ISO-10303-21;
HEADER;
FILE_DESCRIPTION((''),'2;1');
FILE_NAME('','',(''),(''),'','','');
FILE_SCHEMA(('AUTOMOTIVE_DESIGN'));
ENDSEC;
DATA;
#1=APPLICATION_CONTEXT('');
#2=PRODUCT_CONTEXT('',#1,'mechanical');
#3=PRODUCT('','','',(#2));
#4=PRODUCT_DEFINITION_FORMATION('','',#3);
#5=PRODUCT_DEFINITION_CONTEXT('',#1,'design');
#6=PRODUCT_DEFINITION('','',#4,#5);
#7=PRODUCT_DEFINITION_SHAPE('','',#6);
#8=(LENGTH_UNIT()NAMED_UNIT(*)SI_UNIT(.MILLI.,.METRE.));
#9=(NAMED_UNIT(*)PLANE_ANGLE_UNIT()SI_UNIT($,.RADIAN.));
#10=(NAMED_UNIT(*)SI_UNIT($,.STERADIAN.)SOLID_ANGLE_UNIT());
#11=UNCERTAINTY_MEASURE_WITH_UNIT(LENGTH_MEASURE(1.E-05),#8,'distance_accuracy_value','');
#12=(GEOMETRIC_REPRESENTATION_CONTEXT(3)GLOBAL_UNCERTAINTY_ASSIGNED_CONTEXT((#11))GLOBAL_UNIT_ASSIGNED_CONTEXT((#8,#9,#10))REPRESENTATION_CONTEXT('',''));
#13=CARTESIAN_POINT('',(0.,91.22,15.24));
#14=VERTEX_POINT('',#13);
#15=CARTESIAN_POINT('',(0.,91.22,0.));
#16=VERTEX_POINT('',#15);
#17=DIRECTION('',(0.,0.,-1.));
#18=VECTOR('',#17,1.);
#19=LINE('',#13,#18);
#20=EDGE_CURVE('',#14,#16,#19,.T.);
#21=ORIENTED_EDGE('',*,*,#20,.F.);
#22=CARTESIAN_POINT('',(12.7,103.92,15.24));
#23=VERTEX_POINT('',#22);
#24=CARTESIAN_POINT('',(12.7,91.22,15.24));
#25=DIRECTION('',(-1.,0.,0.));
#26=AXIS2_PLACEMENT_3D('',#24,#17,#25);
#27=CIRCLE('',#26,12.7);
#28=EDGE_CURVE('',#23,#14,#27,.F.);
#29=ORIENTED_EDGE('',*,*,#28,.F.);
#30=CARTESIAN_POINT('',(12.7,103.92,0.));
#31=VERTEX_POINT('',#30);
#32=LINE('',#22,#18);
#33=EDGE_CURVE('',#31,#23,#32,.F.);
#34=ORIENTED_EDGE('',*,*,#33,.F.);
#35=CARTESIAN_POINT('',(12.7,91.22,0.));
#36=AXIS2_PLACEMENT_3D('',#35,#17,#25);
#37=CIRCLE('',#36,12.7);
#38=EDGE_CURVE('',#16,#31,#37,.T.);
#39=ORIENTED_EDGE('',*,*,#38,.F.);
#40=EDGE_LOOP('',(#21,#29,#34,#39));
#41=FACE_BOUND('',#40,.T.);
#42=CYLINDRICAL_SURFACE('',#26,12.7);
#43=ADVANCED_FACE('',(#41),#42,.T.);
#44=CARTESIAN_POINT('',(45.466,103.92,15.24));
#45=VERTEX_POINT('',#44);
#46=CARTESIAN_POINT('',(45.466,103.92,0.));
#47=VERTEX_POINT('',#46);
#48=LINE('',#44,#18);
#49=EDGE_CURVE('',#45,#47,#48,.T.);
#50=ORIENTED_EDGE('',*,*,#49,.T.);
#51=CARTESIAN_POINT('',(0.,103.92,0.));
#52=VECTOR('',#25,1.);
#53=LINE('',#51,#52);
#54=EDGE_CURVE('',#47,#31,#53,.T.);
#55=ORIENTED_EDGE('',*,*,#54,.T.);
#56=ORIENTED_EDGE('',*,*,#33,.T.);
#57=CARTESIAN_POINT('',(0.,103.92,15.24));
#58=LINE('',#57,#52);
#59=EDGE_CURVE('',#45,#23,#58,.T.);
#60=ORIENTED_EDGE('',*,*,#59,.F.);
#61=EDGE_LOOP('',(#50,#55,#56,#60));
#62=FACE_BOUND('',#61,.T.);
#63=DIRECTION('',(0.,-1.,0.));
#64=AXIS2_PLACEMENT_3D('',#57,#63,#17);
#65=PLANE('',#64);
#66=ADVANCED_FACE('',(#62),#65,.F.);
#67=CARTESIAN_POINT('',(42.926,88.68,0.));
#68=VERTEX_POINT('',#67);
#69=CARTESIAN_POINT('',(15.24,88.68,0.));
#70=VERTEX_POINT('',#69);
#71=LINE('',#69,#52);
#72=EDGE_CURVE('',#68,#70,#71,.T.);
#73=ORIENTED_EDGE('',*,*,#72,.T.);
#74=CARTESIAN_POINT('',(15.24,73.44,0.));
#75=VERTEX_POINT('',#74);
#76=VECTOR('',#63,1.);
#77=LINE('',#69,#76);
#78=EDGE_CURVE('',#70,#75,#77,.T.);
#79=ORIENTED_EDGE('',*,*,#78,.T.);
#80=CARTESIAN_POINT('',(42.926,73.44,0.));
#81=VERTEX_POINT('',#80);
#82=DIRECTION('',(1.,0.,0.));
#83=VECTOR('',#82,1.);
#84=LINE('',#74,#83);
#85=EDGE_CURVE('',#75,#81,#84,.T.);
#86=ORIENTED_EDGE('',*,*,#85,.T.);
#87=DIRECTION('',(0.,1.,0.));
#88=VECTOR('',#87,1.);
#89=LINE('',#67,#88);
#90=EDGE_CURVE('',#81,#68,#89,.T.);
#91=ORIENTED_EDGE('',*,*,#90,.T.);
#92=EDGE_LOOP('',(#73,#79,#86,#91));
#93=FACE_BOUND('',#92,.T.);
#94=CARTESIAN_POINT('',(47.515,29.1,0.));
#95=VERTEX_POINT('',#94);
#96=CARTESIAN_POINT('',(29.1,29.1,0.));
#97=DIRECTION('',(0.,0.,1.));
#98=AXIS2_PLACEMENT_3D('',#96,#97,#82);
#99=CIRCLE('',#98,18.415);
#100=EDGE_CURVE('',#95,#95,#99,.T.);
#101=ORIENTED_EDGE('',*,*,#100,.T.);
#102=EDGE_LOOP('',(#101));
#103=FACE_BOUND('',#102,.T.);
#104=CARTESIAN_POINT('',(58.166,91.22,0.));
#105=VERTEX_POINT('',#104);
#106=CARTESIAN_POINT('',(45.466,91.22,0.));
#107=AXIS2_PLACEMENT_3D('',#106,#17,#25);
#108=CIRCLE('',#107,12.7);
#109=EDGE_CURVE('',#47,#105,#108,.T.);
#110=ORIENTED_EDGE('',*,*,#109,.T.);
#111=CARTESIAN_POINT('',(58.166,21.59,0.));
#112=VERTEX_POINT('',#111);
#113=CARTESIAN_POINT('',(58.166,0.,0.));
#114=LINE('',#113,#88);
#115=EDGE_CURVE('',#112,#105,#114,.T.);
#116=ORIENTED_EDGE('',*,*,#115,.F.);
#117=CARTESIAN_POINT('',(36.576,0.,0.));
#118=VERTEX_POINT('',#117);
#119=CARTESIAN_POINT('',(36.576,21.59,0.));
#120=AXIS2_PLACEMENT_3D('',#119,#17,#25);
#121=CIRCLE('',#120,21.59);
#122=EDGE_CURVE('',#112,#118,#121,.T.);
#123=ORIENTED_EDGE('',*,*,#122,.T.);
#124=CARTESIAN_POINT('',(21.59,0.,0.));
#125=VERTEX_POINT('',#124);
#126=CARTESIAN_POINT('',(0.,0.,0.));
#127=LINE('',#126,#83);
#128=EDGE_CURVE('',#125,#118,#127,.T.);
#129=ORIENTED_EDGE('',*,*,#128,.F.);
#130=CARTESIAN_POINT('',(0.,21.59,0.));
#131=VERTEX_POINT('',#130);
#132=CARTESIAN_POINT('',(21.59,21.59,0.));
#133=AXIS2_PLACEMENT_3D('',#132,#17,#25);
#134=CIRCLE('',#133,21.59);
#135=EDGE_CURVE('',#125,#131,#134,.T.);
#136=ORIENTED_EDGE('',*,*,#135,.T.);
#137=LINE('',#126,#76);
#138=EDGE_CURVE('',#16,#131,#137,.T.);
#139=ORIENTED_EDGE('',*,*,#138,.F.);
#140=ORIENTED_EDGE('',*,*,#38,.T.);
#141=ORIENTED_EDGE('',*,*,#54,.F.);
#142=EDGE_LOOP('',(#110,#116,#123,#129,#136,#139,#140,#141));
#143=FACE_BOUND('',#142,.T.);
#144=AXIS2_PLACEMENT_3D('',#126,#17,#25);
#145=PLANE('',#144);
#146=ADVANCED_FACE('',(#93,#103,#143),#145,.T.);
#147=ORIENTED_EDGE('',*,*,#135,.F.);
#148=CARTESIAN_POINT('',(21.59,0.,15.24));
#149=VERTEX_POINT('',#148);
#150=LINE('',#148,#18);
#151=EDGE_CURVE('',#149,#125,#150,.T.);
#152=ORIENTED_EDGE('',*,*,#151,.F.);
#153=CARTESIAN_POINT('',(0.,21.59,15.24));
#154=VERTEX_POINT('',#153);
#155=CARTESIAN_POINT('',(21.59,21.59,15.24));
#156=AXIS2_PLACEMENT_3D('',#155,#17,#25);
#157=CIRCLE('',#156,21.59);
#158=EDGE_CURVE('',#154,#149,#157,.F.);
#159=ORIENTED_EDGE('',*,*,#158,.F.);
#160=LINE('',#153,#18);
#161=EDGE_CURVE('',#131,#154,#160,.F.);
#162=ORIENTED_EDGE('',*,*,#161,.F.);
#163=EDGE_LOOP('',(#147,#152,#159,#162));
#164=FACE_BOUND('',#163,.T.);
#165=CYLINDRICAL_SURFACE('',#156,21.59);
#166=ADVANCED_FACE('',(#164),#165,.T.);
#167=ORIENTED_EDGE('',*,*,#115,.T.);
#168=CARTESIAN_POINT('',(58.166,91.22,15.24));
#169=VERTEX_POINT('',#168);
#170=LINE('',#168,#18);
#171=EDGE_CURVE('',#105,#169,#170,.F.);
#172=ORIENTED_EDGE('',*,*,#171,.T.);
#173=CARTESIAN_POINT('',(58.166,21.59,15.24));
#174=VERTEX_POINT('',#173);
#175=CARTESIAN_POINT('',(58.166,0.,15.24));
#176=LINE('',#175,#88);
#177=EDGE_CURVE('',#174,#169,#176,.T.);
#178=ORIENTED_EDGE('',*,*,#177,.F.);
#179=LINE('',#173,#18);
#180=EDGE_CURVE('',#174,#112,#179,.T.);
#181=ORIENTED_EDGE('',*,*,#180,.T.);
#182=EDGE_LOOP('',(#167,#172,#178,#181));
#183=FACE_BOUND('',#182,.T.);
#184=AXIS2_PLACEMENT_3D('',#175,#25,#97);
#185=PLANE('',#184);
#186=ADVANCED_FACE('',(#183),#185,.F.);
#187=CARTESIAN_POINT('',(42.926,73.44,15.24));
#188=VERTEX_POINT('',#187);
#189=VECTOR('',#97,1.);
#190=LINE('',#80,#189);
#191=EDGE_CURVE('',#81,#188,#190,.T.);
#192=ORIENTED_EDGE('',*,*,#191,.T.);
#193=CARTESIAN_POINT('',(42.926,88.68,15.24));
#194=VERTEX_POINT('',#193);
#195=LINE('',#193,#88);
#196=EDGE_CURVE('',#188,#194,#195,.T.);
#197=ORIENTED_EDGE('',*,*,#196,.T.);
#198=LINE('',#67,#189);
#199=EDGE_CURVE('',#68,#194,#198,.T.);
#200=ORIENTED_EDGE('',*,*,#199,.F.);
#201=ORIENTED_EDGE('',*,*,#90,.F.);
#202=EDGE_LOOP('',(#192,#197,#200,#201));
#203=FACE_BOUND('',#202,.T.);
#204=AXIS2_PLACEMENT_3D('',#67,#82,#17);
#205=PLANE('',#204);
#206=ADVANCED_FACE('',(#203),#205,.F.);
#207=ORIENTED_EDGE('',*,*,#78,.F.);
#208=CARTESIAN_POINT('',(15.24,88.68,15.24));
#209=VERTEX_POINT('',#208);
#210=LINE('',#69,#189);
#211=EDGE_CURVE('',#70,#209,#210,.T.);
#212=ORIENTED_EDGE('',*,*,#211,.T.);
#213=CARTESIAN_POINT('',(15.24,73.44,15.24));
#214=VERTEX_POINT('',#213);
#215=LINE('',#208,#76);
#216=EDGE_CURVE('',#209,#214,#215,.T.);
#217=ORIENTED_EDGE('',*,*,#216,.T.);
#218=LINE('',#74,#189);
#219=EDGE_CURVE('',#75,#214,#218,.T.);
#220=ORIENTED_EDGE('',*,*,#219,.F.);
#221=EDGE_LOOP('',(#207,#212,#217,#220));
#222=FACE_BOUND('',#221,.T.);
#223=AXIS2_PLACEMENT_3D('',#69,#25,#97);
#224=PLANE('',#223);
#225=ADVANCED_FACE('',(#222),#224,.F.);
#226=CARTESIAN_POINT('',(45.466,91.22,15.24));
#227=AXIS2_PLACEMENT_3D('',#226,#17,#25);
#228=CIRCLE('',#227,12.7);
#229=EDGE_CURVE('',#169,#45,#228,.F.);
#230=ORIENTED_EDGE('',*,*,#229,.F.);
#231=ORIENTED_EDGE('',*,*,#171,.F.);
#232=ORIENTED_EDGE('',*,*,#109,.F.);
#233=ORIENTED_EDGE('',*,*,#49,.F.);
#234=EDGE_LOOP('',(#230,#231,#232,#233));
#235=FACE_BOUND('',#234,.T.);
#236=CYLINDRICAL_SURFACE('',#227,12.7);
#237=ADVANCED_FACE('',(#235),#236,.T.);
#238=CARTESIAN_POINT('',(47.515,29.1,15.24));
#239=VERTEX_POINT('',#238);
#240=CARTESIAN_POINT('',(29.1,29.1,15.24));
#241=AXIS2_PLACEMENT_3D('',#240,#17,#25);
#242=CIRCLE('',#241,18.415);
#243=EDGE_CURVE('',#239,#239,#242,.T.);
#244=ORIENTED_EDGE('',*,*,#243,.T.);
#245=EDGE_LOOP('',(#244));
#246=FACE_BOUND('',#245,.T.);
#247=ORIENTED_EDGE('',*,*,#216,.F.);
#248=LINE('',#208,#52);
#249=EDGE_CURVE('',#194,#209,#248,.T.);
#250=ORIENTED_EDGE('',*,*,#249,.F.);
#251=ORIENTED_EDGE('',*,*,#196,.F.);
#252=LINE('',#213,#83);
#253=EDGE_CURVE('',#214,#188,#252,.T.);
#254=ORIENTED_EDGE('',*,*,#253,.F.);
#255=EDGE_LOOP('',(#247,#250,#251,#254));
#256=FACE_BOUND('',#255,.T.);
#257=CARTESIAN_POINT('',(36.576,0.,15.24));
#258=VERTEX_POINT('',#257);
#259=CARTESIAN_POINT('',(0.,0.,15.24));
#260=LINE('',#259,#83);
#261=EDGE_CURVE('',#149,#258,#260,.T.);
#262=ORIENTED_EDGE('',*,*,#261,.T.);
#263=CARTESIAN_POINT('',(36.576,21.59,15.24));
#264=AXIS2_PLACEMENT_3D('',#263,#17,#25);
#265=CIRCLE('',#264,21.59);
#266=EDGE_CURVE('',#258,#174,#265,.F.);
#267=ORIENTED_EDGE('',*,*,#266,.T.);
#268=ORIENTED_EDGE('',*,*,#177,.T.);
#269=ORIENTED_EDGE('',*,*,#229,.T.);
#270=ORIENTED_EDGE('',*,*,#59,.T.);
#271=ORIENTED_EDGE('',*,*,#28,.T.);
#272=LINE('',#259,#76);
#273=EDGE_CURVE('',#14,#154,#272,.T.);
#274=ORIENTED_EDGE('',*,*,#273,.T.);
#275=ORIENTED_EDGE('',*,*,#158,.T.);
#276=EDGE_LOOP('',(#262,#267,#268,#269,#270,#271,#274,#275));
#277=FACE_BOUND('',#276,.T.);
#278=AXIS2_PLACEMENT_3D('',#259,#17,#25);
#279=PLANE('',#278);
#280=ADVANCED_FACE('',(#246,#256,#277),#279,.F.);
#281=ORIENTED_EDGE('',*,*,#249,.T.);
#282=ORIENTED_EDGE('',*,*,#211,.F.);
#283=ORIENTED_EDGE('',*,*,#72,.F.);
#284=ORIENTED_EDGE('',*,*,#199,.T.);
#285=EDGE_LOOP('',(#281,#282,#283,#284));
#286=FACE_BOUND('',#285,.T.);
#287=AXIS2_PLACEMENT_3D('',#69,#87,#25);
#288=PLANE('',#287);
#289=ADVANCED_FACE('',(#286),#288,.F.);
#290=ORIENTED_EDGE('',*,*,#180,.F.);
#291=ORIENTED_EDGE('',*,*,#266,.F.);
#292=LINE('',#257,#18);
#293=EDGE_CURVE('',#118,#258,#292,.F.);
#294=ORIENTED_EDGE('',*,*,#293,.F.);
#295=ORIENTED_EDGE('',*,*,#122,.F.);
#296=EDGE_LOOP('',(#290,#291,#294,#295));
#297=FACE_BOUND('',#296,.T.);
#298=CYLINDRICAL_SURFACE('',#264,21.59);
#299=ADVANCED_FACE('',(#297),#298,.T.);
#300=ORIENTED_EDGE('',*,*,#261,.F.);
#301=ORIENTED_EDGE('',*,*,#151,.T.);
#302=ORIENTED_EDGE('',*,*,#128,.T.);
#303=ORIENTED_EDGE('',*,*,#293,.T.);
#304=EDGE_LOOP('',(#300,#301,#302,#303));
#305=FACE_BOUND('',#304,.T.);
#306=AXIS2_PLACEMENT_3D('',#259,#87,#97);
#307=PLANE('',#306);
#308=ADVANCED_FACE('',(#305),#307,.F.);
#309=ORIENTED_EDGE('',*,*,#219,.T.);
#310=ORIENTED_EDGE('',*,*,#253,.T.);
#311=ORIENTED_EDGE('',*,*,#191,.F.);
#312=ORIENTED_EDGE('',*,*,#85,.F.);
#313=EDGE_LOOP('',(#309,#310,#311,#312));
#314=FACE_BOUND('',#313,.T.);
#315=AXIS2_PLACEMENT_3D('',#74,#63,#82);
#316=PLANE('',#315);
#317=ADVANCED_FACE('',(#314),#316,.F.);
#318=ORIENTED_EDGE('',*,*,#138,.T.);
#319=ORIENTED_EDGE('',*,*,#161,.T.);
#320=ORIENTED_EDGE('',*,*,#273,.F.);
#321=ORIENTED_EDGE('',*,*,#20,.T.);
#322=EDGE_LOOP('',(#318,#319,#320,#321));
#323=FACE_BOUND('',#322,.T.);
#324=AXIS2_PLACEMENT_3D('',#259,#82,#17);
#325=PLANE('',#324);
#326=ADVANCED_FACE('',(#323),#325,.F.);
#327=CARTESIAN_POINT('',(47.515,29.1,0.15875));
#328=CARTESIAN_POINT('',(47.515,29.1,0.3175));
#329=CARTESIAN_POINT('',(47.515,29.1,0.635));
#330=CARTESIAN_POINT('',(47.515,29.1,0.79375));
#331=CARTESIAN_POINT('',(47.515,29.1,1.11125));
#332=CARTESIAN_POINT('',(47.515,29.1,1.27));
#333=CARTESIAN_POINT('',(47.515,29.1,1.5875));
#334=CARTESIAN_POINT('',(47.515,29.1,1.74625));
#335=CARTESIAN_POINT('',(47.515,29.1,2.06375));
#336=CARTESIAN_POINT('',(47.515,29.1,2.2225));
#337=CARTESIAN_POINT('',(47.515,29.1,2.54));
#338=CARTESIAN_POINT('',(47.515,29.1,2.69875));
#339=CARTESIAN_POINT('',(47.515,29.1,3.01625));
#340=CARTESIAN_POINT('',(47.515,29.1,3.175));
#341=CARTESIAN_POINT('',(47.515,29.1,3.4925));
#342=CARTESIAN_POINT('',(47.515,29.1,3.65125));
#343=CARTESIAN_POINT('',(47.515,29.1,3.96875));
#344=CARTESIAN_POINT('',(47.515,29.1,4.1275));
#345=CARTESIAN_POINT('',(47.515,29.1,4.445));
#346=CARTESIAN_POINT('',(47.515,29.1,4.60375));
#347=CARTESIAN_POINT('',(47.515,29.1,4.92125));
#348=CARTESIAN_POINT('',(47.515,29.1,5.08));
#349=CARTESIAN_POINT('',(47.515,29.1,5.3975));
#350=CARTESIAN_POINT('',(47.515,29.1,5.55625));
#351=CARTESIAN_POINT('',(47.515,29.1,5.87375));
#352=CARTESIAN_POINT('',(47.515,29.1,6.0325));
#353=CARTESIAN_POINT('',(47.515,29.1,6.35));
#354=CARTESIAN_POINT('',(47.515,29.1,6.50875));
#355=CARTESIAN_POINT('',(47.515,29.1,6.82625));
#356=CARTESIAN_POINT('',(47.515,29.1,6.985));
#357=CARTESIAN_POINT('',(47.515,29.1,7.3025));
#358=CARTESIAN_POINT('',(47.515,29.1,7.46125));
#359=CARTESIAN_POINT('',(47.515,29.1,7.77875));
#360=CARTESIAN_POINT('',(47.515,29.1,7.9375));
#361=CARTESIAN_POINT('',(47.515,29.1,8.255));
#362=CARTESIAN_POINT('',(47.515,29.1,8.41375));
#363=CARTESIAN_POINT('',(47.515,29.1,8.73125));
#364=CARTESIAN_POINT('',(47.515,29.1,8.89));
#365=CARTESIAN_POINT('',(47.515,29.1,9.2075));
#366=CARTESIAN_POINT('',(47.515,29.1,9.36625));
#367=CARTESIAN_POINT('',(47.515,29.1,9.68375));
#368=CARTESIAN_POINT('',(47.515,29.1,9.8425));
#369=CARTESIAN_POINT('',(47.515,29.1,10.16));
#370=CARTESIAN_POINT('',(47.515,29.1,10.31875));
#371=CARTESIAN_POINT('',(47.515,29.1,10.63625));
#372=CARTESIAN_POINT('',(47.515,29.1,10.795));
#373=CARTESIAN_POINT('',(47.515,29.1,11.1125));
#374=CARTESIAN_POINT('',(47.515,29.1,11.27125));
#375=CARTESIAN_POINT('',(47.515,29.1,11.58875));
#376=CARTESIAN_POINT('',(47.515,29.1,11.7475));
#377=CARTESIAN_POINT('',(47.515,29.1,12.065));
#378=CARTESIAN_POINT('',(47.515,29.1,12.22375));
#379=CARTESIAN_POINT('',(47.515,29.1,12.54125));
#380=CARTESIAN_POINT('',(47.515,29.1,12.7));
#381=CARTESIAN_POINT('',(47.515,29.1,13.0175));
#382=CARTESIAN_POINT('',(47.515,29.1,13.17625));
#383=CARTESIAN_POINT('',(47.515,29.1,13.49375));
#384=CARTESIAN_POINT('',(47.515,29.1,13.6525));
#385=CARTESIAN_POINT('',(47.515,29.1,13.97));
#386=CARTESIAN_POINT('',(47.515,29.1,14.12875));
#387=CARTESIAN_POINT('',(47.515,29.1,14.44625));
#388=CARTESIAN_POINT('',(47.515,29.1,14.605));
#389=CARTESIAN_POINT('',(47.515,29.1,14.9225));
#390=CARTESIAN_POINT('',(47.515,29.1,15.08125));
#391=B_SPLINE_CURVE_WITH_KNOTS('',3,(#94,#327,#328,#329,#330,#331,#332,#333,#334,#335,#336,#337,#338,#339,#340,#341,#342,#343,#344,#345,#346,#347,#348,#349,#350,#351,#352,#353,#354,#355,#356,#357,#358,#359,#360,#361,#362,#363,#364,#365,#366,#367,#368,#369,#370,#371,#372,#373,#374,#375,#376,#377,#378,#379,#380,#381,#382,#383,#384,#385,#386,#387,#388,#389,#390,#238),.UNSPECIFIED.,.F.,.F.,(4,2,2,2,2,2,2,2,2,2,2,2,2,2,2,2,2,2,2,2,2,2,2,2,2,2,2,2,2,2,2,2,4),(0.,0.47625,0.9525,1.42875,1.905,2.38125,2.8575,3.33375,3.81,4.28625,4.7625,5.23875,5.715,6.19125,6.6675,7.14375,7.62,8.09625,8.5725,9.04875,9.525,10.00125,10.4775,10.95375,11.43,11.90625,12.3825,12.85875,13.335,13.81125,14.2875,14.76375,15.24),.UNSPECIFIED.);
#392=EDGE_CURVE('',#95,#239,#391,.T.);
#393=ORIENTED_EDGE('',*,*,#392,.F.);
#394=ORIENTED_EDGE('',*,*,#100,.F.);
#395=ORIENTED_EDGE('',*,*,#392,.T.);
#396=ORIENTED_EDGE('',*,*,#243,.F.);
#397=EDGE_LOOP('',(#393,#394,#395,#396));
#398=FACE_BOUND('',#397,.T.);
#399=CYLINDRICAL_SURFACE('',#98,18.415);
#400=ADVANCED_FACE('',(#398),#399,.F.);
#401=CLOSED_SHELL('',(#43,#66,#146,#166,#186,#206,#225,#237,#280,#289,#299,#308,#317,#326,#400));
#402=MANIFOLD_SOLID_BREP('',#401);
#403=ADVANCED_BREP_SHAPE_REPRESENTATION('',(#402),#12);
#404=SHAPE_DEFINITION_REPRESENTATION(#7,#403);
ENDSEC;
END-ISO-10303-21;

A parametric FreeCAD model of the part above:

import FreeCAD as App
import Part
import Sketcher

V = App.Vector
Q = App.Units.Quantity


def edges_at(feature, points):
    """Names of the edges that pass closest to the given points."""
    edges = feature.Shape.Edges
    near = lambda p: min(range(len(edges)), key=lambda i: edges[i].distToShape(Part.Vertex(*p))[0])
    return sorted({f"Edge{near(p) + 1}" for p in points})


def add_polygon(sketch, points):
    """Adds a closed chain of lines whose ends are joined by coincident constraints."""
    first, n = sketch.GeometryCount, len(points)
    for a, b in zip(points, points[1:] + points[:1]):
        sketch.addGeometry(Part.LineSegment(App.Vector(*a, 0), App.Vector(*b, 0)), False)
    for i in range(n):
        sketch.addConstraint(Sketcher.Constraint("Coincident", first + i, 2, first + (i + 1) % n, 1))

doc = App.newDocument("Part")
body = doc.addObject("PartDesign::Body", "Body")

# Sketch on XY plane
sketch1 = body.newObject("Sketcher::SketchObject", "Sketch")
sketch1.AttachmentSupport = (doc.getObject("XY_Plane"), [""])
sketch1.MapMode = "FlatFace"
add_polygon(sketch1, [(0, 104), (0, 0), (58, 0), (58, 104)])  # lines 0-3
sketch1.addConstraint([
    Sketcher.Constraint("Vertical", 0),
    Sketcher.Constraint("Horizontal", 1),
    Sketcher.Constraint("Vertical", 2),
    Sketcher.Constraint("Horizontal", 3),
    Sketcher.Constraint("Coincident", 0, 2, -1, 1),
    Sketcher.Constraint("DistanceX", 1, 1, 1, 2, Q("2.29 in")),
    Sketcher.Constraint("DistanceY", 0, 2, 0, 1, Q("103.92 mm")),
])
pad1 = body.newObject("PartDesign::Pad", "Pad")
pad1.Profile = sketch1
pad1.Length = Q("0.6 in")

# Sketch on XY plane
sketch2 = body.newObject("Sketcher::SketchObject", "Sketch001")
sketch2.AttachmentSupport = (doc.getObject("XY_Plane"), [""])
sketch2.MapMode = "FlatFace"
sketch2.AttachmentOffset = App.Placement(V(0, 0, 0.6 * 25.4), App.Rotation())
add_polygon(sketch2, [(15, 89), (15, 73), (43, 73), (43, 89)])  # lines 0-3
sketch2.addConstraint([
    Sketcher.Constraint("Vertical", 0),
    Sketcher.Constraint("Horizontal", 1),
    Sketcher.Constraint("Vertical", 2),
    Sketcher.Constraint("Horizontal", 3),
    Sketcher.Constraint("DistanceY", 0, 2, 0, 1, Q("0.6 in")),
    Sketcher.Constraint("DistanceX", 1, 1, 1, 2, Q("1.09 in")),
    Sketcher.Constraint("DistanceX", -1, 1, 0, 2, Q("0.6 in")),
    Sketcher.Constraint("DistanceY", -1, 1, 0, 2, Q("73.44 mm")),
])
pocket1 = body.newObject("PartDesign::Pocket", "Pocket")
pocket1.Profile = sketch2
pocket1.Type = "ThroughAll"

# Sketch on XY plane
sketch3 = body.newObject("Sketcher::SketchObject", "Sketch002")
sketch3.AttachmentSupport = (doc.getObject("XY_Plane"), [""])
sketch3.MapMode = "FlatFace"
sketch3.AttachmentOffset = App.Placement(V(0, 0, 0.6 * 25.4), App.Rotation())
sketch3.addGeometry(Part.Circle(V(29, 29, 0), V(0, 0, 1), 18), False)
sketch3.addConstraint([
    Sketcher.Constraint("Diameter", 0, Q("1.45 in")),
    Sketcher.Constraint("DistanceX", -1, 1, 0, 3, Q("29.1 mm")),
    Sketcher.Constraint("DistanceY", -1, 1, 0, 3, Q("29.1 mm")),
])
pocket2 = body.newObject("PartDesign::Pocket", "Pocket001")
pocket2.Profile = sketch3
pocket2.Type = "ThroughAll"
pocket2.Midplane = True
doc.recompute()

fillet = body.newObject("PartDesign::Fillet", "Fillet")
fillet.Base = (pocket2, edges_at(pocket2, [(58.166, 0, 7.62), (0, 0, 7.62)]))
fillet.Radius = Q("0.85 in")
doc.recompute()

fillet2 = body.newObject("PartDesign::Fillet", "Fillet001")
fillet2.Base = (fillet, edges_at(fillet, [(0, 103.92, 7.62), (58.166, 103.92, 7.62)]))
fillet2.Radius = Q("0.5 in")

doc.recompute()
